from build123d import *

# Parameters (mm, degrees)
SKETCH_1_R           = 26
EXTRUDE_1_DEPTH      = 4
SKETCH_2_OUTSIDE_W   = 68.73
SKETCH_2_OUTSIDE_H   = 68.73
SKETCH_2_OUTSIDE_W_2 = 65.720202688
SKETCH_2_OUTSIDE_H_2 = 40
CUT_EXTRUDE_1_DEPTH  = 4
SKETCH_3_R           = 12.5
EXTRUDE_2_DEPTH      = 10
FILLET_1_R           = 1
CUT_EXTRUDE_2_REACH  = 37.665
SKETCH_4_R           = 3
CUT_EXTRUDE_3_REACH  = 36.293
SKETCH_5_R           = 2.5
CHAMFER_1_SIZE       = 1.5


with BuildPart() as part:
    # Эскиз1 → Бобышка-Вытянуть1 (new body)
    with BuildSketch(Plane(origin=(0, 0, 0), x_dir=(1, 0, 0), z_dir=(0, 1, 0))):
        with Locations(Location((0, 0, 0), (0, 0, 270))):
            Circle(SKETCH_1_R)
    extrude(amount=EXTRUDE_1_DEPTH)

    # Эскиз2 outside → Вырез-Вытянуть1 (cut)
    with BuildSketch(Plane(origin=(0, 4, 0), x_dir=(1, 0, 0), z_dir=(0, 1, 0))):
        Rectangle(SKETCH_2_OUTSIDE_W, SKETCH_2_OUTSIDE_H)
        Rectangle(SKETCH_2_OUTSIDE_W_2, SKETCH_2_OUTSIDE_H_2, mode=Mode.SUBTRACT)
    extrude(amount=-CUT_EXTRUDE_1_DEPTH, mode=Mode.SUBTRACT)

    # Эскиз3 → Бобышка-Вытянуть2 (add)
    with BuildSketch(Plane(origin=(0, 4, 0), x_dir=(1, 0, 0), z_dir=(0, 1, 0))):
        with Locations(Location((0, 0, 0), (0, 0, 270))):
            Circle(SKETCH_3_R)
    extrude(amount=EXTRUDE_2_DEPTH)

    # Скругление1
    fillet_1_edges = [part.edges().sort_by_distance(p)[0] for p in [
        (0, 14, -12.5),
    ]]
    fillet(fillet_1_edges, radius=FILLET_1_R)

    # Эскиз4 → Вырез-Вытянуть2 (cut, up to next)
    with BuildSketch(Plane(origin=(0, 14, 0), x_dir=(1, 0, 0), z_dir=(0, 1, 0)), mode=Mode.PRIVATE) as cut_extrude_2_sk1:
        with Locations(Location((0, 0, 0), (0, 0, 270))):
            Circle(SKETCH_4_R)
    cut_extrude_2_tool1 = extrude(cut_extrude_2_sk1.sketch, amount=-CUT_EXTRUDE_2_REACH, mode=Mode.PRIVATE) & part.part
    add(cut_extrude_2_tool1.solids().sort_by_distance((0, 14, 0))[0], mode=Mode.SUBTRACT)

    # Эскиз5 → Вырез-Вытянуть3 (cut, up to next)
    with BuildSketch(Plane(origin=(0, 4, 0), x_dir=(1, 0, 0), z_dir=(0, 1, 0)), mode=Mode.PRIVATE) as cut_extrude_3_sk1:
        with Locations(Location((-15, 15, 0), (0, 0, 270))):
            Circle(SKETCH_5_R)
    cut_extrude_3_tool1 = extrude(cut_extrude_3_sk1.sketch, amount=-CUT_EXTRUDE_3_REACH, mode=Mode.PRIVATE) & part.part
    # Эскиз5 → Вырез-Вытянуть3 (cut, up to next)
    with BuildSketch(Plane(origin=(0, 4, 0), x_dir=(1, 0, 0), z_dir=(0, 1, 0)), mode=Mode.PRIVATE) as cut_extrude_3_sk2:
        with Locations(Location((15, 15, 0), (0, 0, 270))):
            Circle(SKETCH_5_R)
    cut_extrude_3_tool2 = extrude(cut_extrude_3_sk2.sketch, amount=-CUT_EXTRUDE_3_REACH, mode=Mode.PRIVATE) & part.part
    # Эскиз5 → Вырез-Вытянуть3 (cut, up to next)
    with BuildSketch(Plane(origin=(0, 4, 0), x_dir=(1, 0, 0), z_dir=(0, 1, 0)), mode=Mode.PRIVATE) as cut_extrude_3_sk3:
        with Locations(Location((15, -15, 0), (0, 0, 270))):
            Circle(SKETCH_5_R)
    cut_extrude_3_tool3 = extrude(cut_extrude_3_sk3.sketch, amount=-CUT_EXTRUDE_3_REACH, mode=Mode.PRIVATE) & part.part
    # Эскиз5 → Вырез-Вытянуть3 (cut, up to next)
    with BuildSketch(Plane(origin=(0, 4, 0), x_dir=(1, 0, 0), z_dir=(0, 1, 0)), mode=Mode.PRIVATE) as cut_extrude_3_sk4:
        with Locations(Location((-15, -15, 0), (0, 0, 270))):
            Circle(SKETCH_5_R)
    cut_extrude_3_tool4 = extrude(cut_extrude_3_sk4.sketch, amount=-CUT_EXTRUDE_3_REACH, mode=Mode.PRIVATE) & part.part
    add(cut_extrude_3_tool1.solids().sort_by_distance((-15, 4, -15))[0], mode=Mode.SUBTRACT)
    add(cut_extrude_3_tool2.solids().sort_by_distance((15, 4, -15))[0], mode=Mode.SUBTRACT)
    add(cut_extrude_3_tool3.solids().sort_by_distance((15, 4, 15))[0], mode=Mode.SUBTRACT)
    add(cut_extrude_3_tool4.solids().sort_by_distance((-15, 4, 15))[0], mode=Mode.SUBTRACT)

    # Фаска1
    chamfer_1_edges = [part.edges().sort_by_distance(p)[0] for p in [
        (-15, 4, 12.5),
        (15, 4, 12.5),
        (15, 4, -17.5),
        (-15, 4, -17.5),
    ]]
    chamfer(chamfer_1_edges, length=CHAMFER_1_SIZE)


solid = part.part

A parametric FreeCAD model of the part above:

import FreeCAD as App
import Part
import Sketcher


def edges_at(feature, points):
    """Names of the edges that pass closest to the given points."""
    edges = feature.Shape.Edges
    near = lambda p: min(range(len(edges)), key=lambda i: edges[i].distToShape(Part.Vertex(*p))[0])
    return sorted({f"Edge{near(p) + 1}" for p in points})

doc = App.newDocument("Part")
params = doc.addObject("Spreadsheet::Sheet", "Params")
for row, (alias, value) in enumerate([
    ("sketch1_diameter", "52 mm"),
    ("pad1_length", "4 mm"),
    ("sketch2_height", "40 mm"),
    ("sketch2_width", "68.73 mm"),
    ("pocket1_length", "4 mm"),
    ("sketch3_diameter", "25 mm"),
    ("pad2_length", "10 mm"),
    ("fillet_radius", "1 mm"),
    ("sketch4_diameter", "6 mm"),
    ("sketch5_diameter", "5 mm"),
    ("sketch6_diameter", "5 mm"),
    ("sketch7_diameter", "5 mm"),
    ("sketch8_diameter", "5 mm"),
    ("chamfer_size", "1.5 mm"),
], start=1):
    params.set(f"A{row}", alias)
    params.set(f"B{row}", "=" + value)
    params.setAlias(f"B{row}", alias)

body = doc.addObject("PartDesign::Body", "Body")

# Sketch on XZ plane
sketch1 = body.newObject("Sketcher::SketchObject", "Sketch")
sketch1.AttachmentSupport = (doc.getObject("XZ_Plane"), [""])
sketch1.MapMode = "FlatFace"
sketch1.addGeometry(Part.Circle(App.Vector(0, 0, 0), App.Vector(0, 0, 1), 26), False)
sketch1.addConstraint(Sketcher.Constraint("Coincident", 0, 3, -1, 1))
sketch1.addConstraint(Sketcher.Constraint("Diameter", 0, 52.0))
sketch1.setExpression("Constraints[1]", "Params.sketch1_diameter")
pad1 = body.newObject("PartDesign::Pad", "Pad")
pad1.Profile = sketch1
pad1.setExpression("Length", "Params.pad1_length")
pad1.Reversed = True

# Sketch on XZ plane
sketch2 = body.newObject("Sketcher::SketchObject", "Sketch001")
sketch2.AttachmentSupport = (doc.getObject("XZ_Plane"), [""])
sketch2.MapMode = "FlatFace"
sketch2.AttachmentOffset = App.Placement(App.Vector(0, 0, -4), App.Rotation())
sketch2.addGeometry(Part.LineSegment(App.Vector(-34, -34, 0), App.Vector(-34, 34, 0)), False)
sketch2.addGeometry(Part.LineSegment(App.Vector(-34, 34, 0), App.Vector(34, 34, 0)), False)
sketch2.addGeometry(Part.LineSegment(App.Vector(34, 34, 0), App.Vector(34, -34, 0)), False)
sketch2.addGeometry(Part.LineSegment(App.Vector(34, -34, 0), App.Vector(-34, -34, 0)), False)
sketch2.addGeometry(Part.LineSegment(App.Vector(33, 20, 0), App.Vector(-33, 20, 0)), False)
sketch2.addGeometry(Part.LineSegment(App.Vector(-33, 20, 0), App.Vector(-33, -20, 0)), False)
sketch2.addGeometry(Part.LineSegment(App.Vector(-33, -20, 0), App.Vector(33, -20, 0)), False)
sketch2.addGeometry(Part.LineSegment(App.Vector(33, -20, 0), App.Vector(33, 20, 0)), False)
sketch2.addConstraint(Sketcher.Constraint("Coincident", 0, 2, 1, 1))
sketch2.addConstraint(Sketcher.Constraint("Coincident", 1, 2, 2, 1))
sketch2.addConstraint(Sketcher.Constraint("Coincident", 2, 2, 3, 1))
sketch2.addConstraint(Sketcher.Constraint("Coincident", 3, 2, 0, 1))
sketch2.addConstraint(Sketcher.Constraint("Coincident", 4, 2, 5, 1))
sketch2.addConstraint(Sketcher.Constraint("Coincident", 5, 2, 6, 1))
sketch2.addConstraint(Sketcher.Constraint("Coincident", 6, 2, 7, 1))
sketch2.addConstraint(Sketcher.Constraint("Coincident", 7, 2, 4, 1))
sketch2.addConstraint(Sketcher.Constraint("Vertical", 0))
sketch2.addConstraint(Sketcher.Constraint("Horizontal", 1))
sketch2.addConstraint(Sketcher.Constraint("Vertical", 2))
sketch2.addConstraint(Sketcher.Constraint("Horizontal", 3))
sketch2.addConstraint(Sketcher.Constraint("Horizontal", 4))
sketch2.addConstraint(Sketcher.Constraint("Vertical", 5))
sketch2.addConstraint(Sketcher.Constraint("Horizontal", 6))
sketch2.addConstraint(Sketcher.Constraint("Vertical", 7))
sketch2.addConstraint(Sketcher.Constraint("Symmetric", 0, 2, 2, 2, -1, 1))
sketch2.addConstraint(Sketcher.Constraint("Symmetric", 4, 2, 6, 2, -1, 1))
sketch2.addConstraint(Sketcher.Constraint("Equal", 3, 0))
sketch2.addConstraint(Sketcher.Constraint("DistanceY", 5, 2, 5, 1, 40.0))
sketch2.addConstraint(Sketcher.Constraint("DistanceX", 1, 1, 1, 2, 68.73))
sketch2.addConstraint(Sketcher.Constraint("DistanceX", 4, 2, -1, 1, 32.860101))
sketch2.setExpression("Constraints[19]", "Params.sketch2_height")
sketch2.setExpression("Constraints[20]", "Params.sketch2_width")
pocket1 = body.newObject("PartDesign::Pocket", "Pocket")
pocket1.Profile = sketch2
pocket1.setExpression("Length", "Params.pocket1_length")
pocket1.Reversed = True

# Sketch on XZ plane
sketch3 = body.newObject("Sketcher::SketchObject", "Sketch002")
sketch3.AttachmentSupport = (doc.getObject("XZ_Plane"), [""])
sketch3.MapMode = "FlatFace"
sketch3.AttachmentOffset = App.Placement(App.Vector(0, 0, -4), App.Rotation())
sketch3.addGeometry(Part.Circle(App.Vector(0, 0, 0), App.Vector(0, 0, 1), 12), False)
sketch3.addConstraint(Sketcher.Constraint("Coincident", 0, 3, -1, 1))
sketch3.addConstraint(Sketcher.Constraint("Diameter", 0, 25.0))
sketch3.setExpression("Constraints[1]", "Params.sketch3_diameter")
pad2 = body.newObject("PartDesign::Pad", "Pad001")
pad2.Profile = sketch3
pad2.setExpression("Length", "Params.pad2_length")
pad2.Reversed = True
doc.recompute()

fillet = body.newObject("PartDesign::Fillet", "Fillet")
fillet.Base = (pad2, edges_at(pad2, [(0, 14, -12.5)]))
fillet.setExpression("Radius", "Params.fillet_radius")

# Sketch on XZ plane
sketch4 = body.newObject("Sketcher::SketchObject", "Sketch003")
sketch4.AttachmentSupport = (doc.getObject("XZ_Plane"), [""])
sketch4.MapMode = "FlatFace"
sketch4.AttachmentOffset = App.Placement(App.Vector(0, 0, -14), App.Rotation())
sketch4.addGeometry(Part.Circle(App.Vector(0, 0, 0), App.Vector(0, 0, 1), 3), False)
sketch4.addConstraint(Sketcher.Constraint("Coincident", 0, 3, -1, 1))
sketch4.addConstraint(Sketcher.Constraint("Diameter", 0, 6.0))
sketch4.setExpression("Constraints[1]", "Params.sketch4_diameter")
pocket2 = body.newObject("PartDesign::Pocket", "Pocket001")
pocket2.Profile = sketch4
pocket2.Type = "UpToFirst"
pocket2.Reversed = True

# Sketch on XZ plane
sketch5 = body.newObject("Sketcher::SketchObject", "Sketch004")
sketch5.AttachmentSupport = (doc.getObject("XZ_Plane"), [""])
sketch5.MapMode = "FlatFace"
sketch5.AttachmentOffset = App.Placement(App.Vector(0, 0, -4), App.Rotation())
sketch5.addGeometry(Part.Circle(App.Vector(-15, -15, 0), App.Vector(0, 0, 1), 2.5), False)
sketch5.addConstraint(Sketcher.Constraint("Diameter", 0, 5.0))
sketch5.addConstraint(Sketcher.Constraint("DistanceX", 0, 3, -1, 1, 15.0))
sketch5.addConstraint(Sketcher.Constraint("DistanceY", 0, 3, -1, 1, 15.0))
sketch5.setExpression("Constraints[0]", "Params.sketch5_diameter")
pocket3 = body.newObject("PartDesign::Pocket", "Pocket002")
pocket3.Profile = sketch5
pocket3.Type = "UpToFirst"
pocket3.Reversed = True

# Sketch on XZ plane
sketch6 = body.newObject("Sketcher::SketchObject", "Sketch005")
sketch6.AttachmentSupport = (doc.getObject("XZ_Plane"), [""])
sketch6.MapMode = "FlatFace"
sketch6.AttachmentOffset = App.Placement(App.Vector(0, 0, -4), App.Rotation())
sketch6.addGeometry(Part.Circle(App.Vector(15, -15, 0), App.Vector(0, 0, 1), 2.5), False)
sketch6.addConstraint(Sketcher.Constraint("Diameter", 0, 5.0))
sketch6.addConstraint(Sketcher.Constraint("DistanceX", -1, 1, 0, 3, 15.0))
sketch6.addConstraint(Sketcher.Constraint("DistanceY", 0, 3, -1, 1, 15.0))
sketch6.setExpression("Constraints[0]", "Params.sketch6_diameter")
pocket4 = body.newObject("PartDesign::Pocket", "Pocket003")
pocket4.Profile = sketch6
pocket4.Type = "UpToFirst"
pocket4.Reversed = True

# Sketch on XZ plane
sketch7 = body.newObject("Sketcher::SketchObject", "Sketch006")
sketch7.AttachmentSupport = (doc.getObject("XZ_Plane"), [""])
sketch7.MapMode = "FlatFace"
sketch7.AttachmentOffset = App.Placement(App.Vector(0, 0, -4), App.Rotation())
sketch7.addGeometry(Part.Circle(App.Vector(15, 15, 0), App.Vector(0, 0, 1), 2.5), False)
sketch7.addConstraint(Sketcher.Constraint("Diameter", 0, 5.0))
sketch7.addConstraint(Sketcher.Constraint("DistanceX", -1, 1, 0, 3, 15.0))
sketch7.addConstraint(Sketcher.Constraint("DistanceY", -1, 1, 0, 3, 15.0))
sketch7.setExpression("Constraints[0]", "Params.sketch7_diameter")
pocket5 = body.newObject("PartDesign::Pocket", "Pocket004")
pocket5.Profile = sketch7
pocket5.Type = "UpToFirst"
pocket5.Reversed = True

# Sketch on XZ plane
sketch8 = body.newObject("Sketcher::SketchObject", "Sketch007")
sketch8.AttachmentSupport = (doc.getObject("XZ_Plane"), [""])
sketch8.MapMode = "FlatFace"
sketch8.AttachmentOffset = App.Placement(App.Vector(0, 0, -4), App.Rotation())
sketch8.addGeometry(Part.Circle(App.Vector(-15, 15, 0), App.Vector(0, 0, 1), 2.5), False)
sketch8.addConstraint(Sketcher.Constraint("Diameter", 0, 5.0))
sketch8.addConstraint(Sketcher.Constraint("DistanceX", 0, 3, -1, 1, 15.0))
sketch8.addConstraint(Sketcher.Constraint("DistanceY", -1, 1, 0, 3, 15.0))
sketch8.setExpression("Constraints[0]", "Params.sketch8_diameter")
pocket6 = body.newObject("PartDesign::Pocket", "Pocket005")
pocket6.Profile = sketch8
pocket6.Type = "UpToFirst"
pocket6.Reversed = True
doc.recompute()

chamfer = body.newObject("PartDesign::Chamfer", "Chamfer")
chamfer.Base = (pocket6, edges_at(pocket6, [
    (-15, 4, 12.5),
    (15, 4, 12.5),
    (15, 4, -17.5),
    (-15, 4, -17.5),
]))
chamfer.setExpression("Size", "Params.chamfer_size")

doc.recompute()
